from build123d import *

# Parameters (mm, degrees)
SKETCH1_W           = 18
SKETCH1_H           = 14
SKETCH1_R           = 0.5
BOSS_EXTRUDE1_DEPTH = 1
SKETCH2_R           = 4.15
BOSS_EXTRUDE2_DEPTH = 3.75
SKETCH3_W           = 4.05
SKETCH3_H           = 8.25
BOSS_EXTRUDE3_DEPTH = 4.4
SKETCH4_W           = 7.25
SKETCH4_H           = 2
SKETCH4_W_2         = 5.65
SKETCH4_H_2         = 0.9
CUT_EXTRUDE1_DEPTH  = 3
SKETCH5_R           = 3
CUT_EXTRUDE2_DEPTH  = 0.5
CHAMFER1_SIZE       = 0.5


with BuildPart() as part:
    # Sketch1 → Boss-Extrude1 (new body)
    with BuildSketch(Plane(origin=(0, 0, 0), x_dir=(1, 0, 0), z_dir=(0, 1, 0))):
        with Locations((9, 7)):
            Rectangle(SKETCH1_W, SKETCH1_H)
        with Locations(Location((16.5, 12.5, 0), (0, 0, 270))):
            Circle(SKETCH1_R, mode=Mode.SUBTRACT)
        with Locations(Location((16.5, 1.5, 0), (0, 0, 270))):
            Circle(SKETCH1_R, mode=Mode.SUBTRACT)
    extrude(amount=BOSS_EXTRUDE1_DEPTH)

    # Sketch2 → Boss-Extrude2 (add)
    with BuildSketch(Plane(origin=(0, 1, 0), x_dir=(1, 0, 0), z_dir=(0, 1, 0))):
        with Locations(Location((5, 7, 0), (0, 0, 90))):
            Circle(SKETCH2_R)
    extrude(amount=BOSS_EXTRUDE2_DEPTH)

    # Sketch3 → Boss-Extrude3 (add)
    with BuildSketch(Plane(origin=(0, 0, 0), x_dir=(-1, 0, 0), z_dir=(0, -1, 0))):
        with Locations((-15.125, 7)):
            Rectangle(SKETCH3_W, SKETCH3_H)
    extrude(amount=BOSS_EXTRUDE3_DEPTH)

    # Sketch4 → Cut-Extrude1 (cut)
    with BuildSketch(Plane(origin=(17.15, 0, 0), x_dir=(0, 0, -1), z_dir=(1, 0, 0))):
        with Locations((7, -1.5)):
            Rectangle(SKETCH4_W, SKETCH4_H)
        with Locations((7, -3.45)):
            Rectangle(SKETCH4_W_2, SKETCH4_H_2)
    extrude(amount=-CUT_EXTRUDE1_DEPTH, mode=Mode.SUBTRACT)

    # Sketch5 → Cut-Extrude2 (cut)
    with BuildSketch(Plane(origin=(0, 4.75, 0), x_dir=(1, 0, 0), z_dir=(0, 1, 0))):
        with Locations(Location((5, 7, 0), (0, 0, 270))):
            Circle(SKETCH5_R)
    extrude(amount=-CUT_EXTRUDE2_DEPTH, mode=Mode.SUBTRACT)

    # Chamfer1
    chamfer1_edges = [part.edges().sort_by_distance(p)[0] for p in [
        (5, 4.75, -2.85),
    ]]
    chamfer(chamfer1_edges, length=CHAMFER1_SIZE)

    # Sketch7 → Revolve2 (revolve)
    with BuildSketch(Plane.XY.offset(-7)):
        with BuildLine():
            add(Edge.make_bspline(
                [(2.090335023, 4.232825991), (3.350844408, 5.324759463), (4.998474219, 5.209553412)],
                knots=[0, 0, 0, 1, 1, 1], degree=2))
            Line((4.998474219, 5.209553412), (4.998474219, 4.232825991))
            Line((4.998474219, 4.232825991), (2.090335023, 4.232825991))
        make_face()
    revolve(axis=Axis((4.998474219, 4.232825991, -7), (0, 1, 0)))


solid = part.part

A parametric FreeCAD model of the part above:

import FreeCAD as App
import Part
import Sketcher


def edges_at(feature, points):
    """Names of the edges that pass closest to the given points."""
    edges = feature.Shape.Edges
    near = lambda p: min(range(len(edges)), key=lambda i: edges[i].distToShape(Part.Vertex(*p))[0])
    return sorted({f"Edge{near(p) + 1}" for p in points})


def add_polygon(sketch, points):
    """Adds a closed chain of lines whose ends are joined by coincident constraints."""
    first, n = sketch.GeometryCount, len(points)
    for a, b in zip(points, points[1:] + points[:1]):
        sketch.addGeometry(Part.LineSegment(App.Vector(*a, 0), App.Vector(*b, 0)), False)
    for i in range(n):
        sketch.addConstraint(Sketcher.Constraint("Coincident", first + i, 2, first + (i + 1) % n, 1))

doc = App.newDocument("Part")
params = doc.addObject("Spreadsheet::Sheet", "Params")
for row, (alias, value) in enumerate([
    ("sketch1_diameter", "1 mm"),
    ("sketch1_width", "18 mm"),
    ("sketch1_height", "14 mm"),
    ("pad1_length", "1 mm"),
    ("sketch2_diameter", "8.3 mm"),
    ("pad2_length", "3.75 mm"),
    ("sketch3_width", "4.05 mm"),
    ("sketch3_height", "8.25 mm"),
    ("pad3_length", "4.4 mm"),
    ("sketch4_width", "2 mm"),
    ("sketch4_width2", "0.9 mm"),
    ("sketch4_height", "7.25 mm"),
    ("sketch4_height2", "5.65 mm"),
    ("pocket1_length", "3 mm"),
    ("sketch5_diameter", "6 mm"),
    ("pocket2_length", "0.5 mm"),
    ("chamfer_size", "0.5 mm"),
    ("revolution_angle", "360 deg"),
], start=1):
    params.set(f"A{row}", alias)
    params.set(f"B{row}", "=" + value)
    params.setAlias(f"B{row}", alias)

body = doc.addObject("PartDesign::Body", "Body")

sketch1 = body.newObject("Sketcher::SketchObject", "Sketch")
sketch1.AttachmentSupport = (doc.getObject("XZ_Plane"), [""])
sketch1.MapMode = "FlatFace"
add_polygon(sketch1, [(0, -14), (0, 0), (18, 0), (18, -14)])
sketch1.addGeometry(Part.Circle(App.Vector(16.5, -1.5, 0), App.Vector(0, 0, 1), 0.5), False)
sketch1.addGeometry(Part.Circle(App.Vector(16.5, -12.5, 0), App.Vector(0, 0, 1), 0.5), False)
sketch1.addConstraint(Sketcher.Constraint("Vertical", 0))
sketch1.addConstraint(Sketcher.Constraint("Horizontal", 1))
sketch1.addConstraint(Sketcher.Constraint("Vertical", 2))
sketch1.addConstraint(Sketcher.Constraint("Horizontal", 3))
sketch1.addConstraint(Sketcher.Constraint("Coincident", 0, 2, -1, 1))
sketch1.addConstraint(Sketcher.Constraint("Equal", 4, 5))
sketch1.addConstraint(Sketcher.Constraint("Vertical", 4, 3, 5, 3))
sketch1.addConstraint(Sketcher.Constraint("Diameter", 4, 1.0))
sketch1.addConstraint(Sketcher.Constraint("DistanceX", 1, 1, 1, 2, 18.0))
sketch1.addConstraint(Sketcher.Constraint("DistanceY", 0, 1, 0, 2, 14.0))
sketch1.addConstraint(Sketcher.Constraint("DistanceY", 5, 3, 4, 3, 11.0))
sketch1.addConstraint(Sketcher.Constraint("DistanceX", -1, 1, 4, 3, 16.5))
sketch1.addConstraint(Sketcher.Constraint("DistanceY", 4, 3, -1, 1, 1.5))
sketch1.setExpression("Constraints[11]", "Params.sketch1_diameter")
sketch1.setExpression("Constraints[12]", "Params.sketch1_width")
sketch1.setExpression("Constraints[13]", "Params.sketch1_height")
pad1 = body.newObject("PartDesign::Pad", "Pad")
pad1.Profile = sketch1
pad1.setExpression("Length", "Params.pad1_length")
pad1.Reversed = True

sketch2 = body.newObject("Sketcher::SketchObject", "Sketch001")
sketch2.AttachmentSupport = (doc.getObject("XZ_Plane"), [""])
sketch2.MapMode = "FlatFace"
sketch2.AttachmentOffset = App.Placement(App.Vector(0, 0, -1), App.Rotation())
sketch2.addGeometry(Part.Circle(App.Vector(5, -7, 0), App.Vector(0, 0, 1), 4.15), False)
sketch2.addConstraint(Sketcher.Constraint("Diameter", 0, 8.3))
sketch2.addConstraint(Sketcher.Constraint("DistanceX", -1, 1, 0, 3, 5.0))
sketch2.addConstraint(Sketcher.Constraint("DistanceY", 0, 3, -1, 1, 7.0))
sketch2.setExpression("Constraints[0]", "Params.sketch2_diameter")
pad2 = body.newObject("PartDesign::Pad", "Pad001")
pad2.Profile = sketch2
pad2.setExpression("Length", "Params.pad2_length")
pad2.Reversed = True

sketch3 = body.newObject("Sketcher::SketchObject", "Sketch002")
sketch3.AttachmentSupport = (doc.getObject("XZ_Plane"), [""])
sketch3.MapMode = "FlatFace"
add_polygon(sketch3, [(17.15, -11.125), (17.15, -2.875), (13.1, -2.875), (13.1, -11.125)])
sketch3.addConstraint(Sketcher.Constraint("Vertical", 0))
sketch3.addConstraint(Sketcher.Constraint("Horizontal", 1))
sketch3.addConstraint(Sketcher.Constraint("Vertical", 2))
sketch3.addConstraint(Sketcher.Constraint("Horizontal", 3))
sketch3.addConstraint(Sketcher.Constraint("DistanceX", 1, 2, 1, 1, 4.05))
sketch3.addConstraint(Sketcher.Constraint("DistanceY", 0, 1, 0, 2, 8.25))
sketch3.addConstraint(Sketcher.Constraint("DistanceX", -1, 1, 1, 2, 13.1))
sketch3.addConstraint(Sketcher.Constraint("DistanceY", 0, 2, -1, 1, 2.875))
sketch3.setExpression("Constraints[8]", "Params.sketch3_width")
sketch3.setExpression("Constraints[9]", "Params.sketch3_height")
pad3 = body.newObject("PartDesign::Pad", "Pad002")
pad3.Profile = sketch3
pad3.setExpression("Length", "Params.pad3_length")

sketch4 = body.newObject("Sketcher::SketchObject", "Sketch003")
sketch4.AttachmentSupport = (doc.getObject("YZ_Plane"), [""])
sketch4.MapMode = "FlatFace"
sketch4.AttachmentOffset = App.Placement(App.Vector(0, 0, 17.15), App.Rotation())
add_polygon(sketch4, [(-0.5, -3.375), (-2.5, -3.375), (-2.5, -10.625), (-0.5, -10.625)])
add_polygon(sketch4, [(-3, -4.175), (-3.9, -4.175), (-3.9, -9.825), (-3, -9.825)])
sketch4.addConstraint(Sketcher.Constraint("Horizontal", 0))
sketch4.addConstraint(Sketcher.Constraint("Vertical", 1))
sketch4.addConstraint(Sketcher.Constraint("Horizontal", 2))
sketch4.addConstraint(Sketcher.Constraint("Vertical", 3))
sketch4.addConstraint(Sketcher.Constraint("Horizontal", 4))
sketch4.addConstraint(Sketcher.Constraint("Vertical", 5))
sketch4.addConstraint(Sketcher.Constraint("Horizontal", 6))
sketch4.addConstraint(Sketcher.Constraint("Vertical", 7))
sketch4.addConstraint(Sketcher.Constraint("DistanceX", 0, 2, 0, 1, 2.0))
sketch4.addConstraint(Sketcher.Constraint("DistanceX", 4, 2, 4, 1, 0.9))
sketch4.addConstraint(Sketcher.Constraint("DistanceX", 6, 2, -1, 1, 3.0))
sketch4.addConstraint(Sketcher.Constraint("DistanceY", 1, 2, 1, 1, 7.25))
sketch4.addConstraint(Sketcher.Constraint("DistanceY", 5, 2, 5, 1, 5.65))
sketch4.addConstraint(Sketcher.Constraint("DistanceX", 0, 2, -1, 1, 2.5))
sketch4.addConstraint(Sketcher.Constraint("DistanceY", 4, 2, 0, 2, 0.8))
sketch4.addConstraint(Sketcher.Constraint("DistanceY", 0, 2, -1, 1, 3.375))
sketch4.setExpression("Constraints[16]", "Params.sketch4_width")
sketch4.setExpression("Constraints[17]", "Params.sketch4_width2")
sketch4.setExpression("Constraints[19]", "Params.sketch4_height")
sketch4.setExpression("Constraints[20]", "Params.sketch4_height2")
pocket1 = body.newObject("PartDesign::Pocket", "Pocket")
pocket1.Profile = sketch4
pocket1.setExpression("Length", "Params.pocket1_length")

sketch5 = body.newObject("Sketcher::SketchObject", "Sketch004")
sketch5.AttachmentSupport = (doc.getObject("XZ_Plane"), [""])
sketch5.MapMode = "FlatFace"
sketch5.AttachmentOffset = App.Placement(App.Vector(0, 0, -4.75), App.Rotation())
sketch5.addGeometry(Part.Circle(App.Vector(5, -7, 0), App.Vector(0, 0, 1), 3), False)
sketch5.addConstraint(Sketcher.Constraint("Diameter", 0, 6.0))
sketch5.addConstraint(Sketcher.Constraint("DistanceX", -1, 1, 0, 3, 5.0))
sketch5.addConstraint(Sketcher.Constraint("DistanceY", 0, 3, -1, 1, 7.0))
sketch5.setExpression("Constraints[0]", "Params.sketch5_diameter")
pocket2 = body.newObject("PartDesign::Pocket", "Pocket001")
pocket2.Profile = sketch5
pocket2.setExpression("Length", "Params.pocket2_length")
pocket2.Reversed = True
doc.recompute()

chamfer = body.newObject("PartDesign::Chamfer", "Chamfer")
chamfer.Base = (pocket2, edges_at(pocket2, [(5, 4.75, -2.85)]))
chamfer.setExpression("Size", "Params.chamfer_size")

sketch6 = body.newObject("Sketcher::SketchObject", "Sketch005")
sketch6.AttachmentSupport = (doc.getObject("XY_Plane"), [""])
sketch6.MapMode = "FlatFace"
sketch6.AttachmentOffset = App.Placement(App.Vector(0, 0, -7), App.Rotation())
sketch6.addGeometry(Part.BSplineCurve([App.Vector(2.090335, 4.232826, 0), App.Vector(3.350844, 5.324759, 0), App.Vector(4.998474, 5.209553, 0)], [3, 3], [0, 1], False, 2, [1, 1, 1], False), False)
sketch6.addGeometry(Part.LineSegment(App.Vector(2.090335, 4.232826, 0), App.Vector(4.998474, 4.232826, 0)), False)
sketch6.addGeometry(Part.LineSegment(App.Vector(4.998474, 4.232826, 0), App.Vector(4.998474, 5.209553, 0)), False)
sketch6.addGeometry(Part.LineSegment(App.Vector(4.998474, 4.232826, 0), App.Vector(4.998474, 5.209553, 0)), True)
sketch6.addConstraint(Sketcher.Constraint("Block", 0))
sketch6.addConstraint(Sketcher.Constraint("Coincident", 0, 1, 1, 1))
sketch6.addConstraint(Sketcher.Constraint("Coincident", 1, 2, 2, 1))
sketch6.addConstraint(Sketcher.Constraint("Coincident", 2, 2, 0, 2))
sketch6.addConstraint(Sketcher.Constraint("Horizontal", 1))
sketch6.addConstraint(Sketcher.Constraint("Vertical", 2))
sketch6.addConstraint(Sketcher.Constraint("Vertical", 3))
sketch6.addConstraint(Sketcher.Constraint("Coincident", 3, 1, 1, 2))
sketch6.addConstraint(Sketcher.Constraint("Equal", 2, 3))
revolution = body.newObject("PartDesign::Revolution", "Revolution")
revolution.Profile = sketch6
revolution.ReferenceAxis = (sketch6, ["Axis0"])
revolution.setExpression("Angle", "Params.revolution_angle")

doc.recompute()
